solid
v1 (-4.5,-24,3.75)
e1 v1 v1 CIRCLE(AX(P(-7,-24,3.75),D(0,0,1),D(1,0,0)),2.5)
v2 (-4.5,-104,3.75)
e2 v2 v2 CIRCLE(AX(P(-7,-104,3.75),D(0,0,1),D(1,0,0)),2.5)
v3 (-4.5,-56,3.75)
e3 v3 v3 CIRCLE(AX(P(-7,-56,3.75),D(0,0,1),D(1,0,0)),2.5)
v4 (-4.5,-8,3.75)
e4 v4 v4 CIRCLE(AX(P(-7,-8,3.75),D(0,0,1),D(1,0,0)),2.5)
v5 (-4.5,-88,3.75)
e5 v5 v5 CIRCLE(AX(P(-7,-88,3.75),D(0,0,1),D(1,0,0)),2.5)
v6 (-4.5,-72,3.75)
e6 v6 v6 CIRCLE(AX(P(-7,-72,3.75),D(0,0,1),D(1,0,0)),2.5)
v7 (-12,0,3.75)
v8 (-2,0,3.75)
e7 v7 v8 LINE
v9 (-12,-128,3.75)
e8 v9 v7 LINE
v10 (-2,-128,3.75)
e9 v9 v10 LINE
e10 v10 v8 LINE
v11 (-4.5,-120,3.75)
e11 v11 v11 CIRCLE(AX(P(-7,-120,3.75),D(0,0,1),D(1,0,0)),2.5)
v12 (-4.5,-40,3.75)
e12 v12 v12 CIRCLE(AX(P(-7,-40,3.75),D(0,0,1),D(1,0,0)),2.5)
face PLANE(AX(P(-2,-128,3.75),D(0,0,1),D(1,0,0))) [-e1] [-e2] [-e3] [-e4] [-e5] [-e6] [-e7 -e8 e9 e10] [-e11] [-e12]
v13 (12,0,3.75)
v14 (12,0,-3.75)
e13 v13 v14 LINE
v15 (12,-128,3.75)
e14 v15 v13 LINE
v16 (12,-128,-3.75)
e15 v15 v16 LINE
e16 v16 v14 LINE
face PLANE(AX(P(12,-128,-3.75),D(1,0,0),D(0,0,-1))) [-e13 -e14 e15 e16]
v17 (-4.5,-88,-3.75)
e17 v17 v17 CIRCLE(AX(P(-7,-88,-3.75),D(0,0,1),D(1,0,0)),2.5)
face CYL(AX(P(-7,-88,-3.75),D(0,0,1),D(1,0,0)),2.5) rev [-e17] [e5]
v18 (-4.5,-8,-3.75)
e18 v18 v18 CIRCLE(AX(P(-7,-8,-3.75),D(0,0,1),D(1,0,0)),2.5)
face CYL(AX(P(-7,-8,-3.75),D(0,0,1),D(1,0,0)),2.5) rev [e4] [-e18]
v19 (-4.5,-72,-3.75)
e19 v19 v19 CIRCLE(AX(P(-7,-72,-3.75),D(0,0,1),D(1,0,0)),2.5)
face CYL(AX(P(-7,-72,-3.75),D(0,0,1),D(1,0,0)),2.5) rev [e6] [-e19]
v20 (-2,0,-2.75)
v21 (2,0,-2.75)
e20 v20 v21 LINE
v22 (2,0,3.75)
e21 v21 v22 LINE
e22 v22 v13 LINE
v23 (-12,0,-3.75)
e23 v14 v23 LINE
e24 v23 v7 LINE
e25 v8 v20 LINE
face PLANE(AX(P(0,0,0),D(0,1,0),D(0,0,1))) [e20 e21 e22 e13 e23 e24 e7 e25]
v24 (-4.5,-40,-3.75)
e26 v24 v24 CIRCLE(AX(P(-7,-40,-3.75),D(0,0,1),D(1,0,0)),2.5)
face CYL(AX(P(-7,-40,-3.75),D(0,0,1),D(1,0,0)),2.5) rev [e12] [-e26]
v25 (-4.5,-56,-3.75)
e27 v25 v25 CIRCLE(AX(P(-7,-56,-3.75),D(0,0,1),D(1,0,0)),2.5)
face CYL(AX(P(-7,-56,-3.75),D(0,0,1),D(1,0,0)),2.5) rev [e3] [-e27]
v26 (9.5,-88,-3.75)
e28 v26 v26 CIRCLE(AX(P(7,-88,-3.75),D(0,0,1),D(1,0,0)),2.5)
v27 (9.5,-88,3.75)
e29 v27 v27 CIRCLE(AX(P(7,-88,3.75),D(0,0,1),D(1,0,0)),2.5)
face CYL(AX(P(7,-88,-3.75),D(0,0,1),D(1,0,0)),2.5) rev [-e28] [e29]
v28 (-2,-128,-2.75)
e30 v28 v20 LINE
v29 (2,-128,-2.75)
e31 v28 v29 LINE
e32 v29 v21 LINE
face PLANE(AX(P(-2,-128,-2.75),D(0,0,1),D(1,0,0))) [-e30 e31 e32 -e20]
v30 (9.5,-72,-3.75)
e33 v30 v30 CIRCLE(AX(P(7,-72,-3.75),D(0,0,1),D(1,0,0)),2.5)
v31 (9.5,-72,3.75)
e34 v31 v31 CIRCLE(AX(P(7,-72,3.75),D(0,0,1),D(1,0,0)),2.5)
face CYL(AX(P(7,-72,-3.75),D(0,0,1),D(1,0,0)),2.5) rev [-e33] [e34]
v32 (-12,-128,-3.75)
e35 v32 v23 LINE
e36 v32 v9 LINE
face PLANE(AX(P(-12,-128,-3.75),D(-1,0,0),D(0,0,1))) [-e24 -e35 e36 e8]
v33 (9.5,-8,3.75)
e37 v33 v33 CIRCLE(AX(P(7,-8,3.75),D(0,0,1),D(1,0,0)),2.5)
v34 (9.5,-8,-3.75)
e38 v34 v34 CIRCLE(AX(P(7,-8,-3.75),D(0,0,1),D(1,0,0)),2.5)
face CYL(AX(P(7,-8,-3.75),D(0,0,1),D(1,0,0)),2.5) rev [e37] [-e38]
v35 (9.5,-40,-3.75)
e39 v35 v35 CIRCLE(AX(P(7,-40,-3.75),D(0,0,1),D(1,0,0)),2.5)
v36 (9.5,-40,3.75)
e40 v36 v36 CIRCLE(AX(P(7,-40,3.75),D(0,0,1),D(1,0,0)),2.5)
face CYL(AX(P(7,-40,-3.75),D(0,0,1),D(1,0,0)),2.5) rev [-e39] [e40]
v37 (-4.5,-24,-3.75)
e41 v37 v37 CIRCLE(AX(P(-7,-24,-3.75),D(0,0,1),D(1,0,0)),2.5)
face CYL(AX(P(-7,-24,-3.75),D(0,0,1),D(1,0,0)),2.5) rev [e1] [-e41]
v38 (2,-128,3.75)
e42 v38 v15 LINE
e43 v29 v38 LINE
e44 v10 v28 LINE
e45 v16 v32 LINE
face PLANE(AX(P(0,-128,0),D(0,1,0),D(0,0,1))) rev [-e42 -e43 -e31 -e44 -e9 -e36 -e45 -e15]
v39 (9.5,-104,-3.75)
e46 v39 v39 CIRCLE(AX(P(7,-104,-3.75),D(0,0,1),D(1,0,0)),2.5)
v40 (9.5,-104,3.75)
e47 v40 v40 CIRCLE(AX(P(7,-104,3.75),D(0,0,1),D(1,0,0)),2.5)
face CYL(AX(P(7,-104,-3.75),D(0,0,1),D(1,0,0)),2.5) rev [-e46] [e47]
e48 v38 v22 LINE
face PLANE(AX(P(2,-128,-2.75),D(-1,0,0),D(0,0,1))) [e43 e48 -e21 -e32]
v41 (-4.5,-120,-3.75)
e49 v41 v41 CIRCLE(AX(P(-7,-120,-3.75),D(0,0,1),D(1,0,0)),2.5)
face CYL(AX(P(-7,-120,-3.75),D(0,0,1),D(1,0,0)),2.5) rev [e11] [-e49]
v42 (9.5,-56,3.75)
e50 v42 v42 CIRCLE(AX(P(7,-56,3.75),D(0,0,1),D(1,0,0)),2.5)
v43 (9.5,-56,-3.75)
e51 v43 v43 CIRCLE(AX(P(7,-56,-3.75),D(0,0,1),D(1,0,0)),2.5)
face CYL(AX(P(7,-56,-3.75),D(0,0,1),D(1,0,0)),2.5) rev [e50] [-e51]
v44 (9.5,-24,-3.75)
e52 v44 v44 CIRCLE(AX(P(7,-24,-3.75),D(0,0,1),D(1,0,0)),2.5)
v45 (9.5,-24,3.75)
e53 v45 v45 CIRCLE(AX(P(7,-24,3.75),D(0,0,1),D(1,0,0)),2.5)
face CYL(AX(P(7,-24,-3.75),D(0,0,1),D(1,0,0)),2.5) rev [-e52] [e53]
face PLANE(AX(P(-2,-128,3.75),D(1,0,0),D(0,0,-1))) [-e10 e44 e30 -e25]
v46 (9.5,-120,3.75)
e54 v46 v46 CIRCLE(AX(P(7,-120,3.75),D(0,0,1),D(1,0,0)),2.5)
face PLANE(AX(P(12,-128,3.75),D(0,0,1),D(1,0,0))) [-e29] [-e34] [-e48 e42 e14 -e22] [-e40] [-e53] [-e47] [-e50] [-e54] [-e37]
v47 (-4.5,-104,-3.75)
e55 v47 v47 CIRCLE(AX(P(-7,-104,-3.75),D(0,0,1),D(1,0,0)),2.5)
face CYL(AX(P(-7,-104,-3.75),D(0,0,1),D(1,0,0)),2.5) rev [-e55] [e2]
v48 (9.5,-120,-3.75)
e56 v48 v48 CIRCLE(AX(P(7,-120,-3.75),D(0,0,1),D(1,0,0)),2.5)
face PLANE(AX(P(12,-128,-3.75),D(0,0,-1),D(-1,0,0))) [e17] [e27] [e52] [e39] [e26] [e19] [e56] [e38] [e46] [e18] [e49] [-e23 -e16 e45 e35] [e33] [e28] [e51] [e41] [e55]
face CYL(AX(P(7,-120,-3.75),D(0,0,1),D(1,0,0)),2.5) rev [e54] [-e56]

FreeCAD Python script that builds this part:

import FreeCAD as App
import Part
import Sketcher

doc = App.newDocument("Part")
body = doc.addObject("PartDesign::Body", "Body")

sketch1 = body.newObject("Sketcher::SketchObject", "Sketch")
sketch1.AttachmentSupport = (doc.getObject("XZ_Plane"), [""])
sketch1.MapMode = "FlatFace"
sketch1.addGeometry(Part.LineSegment(App.Vector(-2, 3.8, 0), App.Vector(-2, -2.8, 0)), False)
sketch1.addGeometry(Part.LineSegment(App.Vector(-2, -2.8, 0), App.Vector(2, -2.8, 0)), False)
sketch1.addGeometry(Part.LineSegment(App.Vector(2, -2.8, 0), App.Vector(2, 3.8, 0)), False)
sketch1.addGeometry(Part.LineSegment(App.Vector(2, 3.8, 0), App.Vector(12, 3.8, 0)), False)
sketch1.addGeometry(Part.LineSegment(App.Vector(12, 3.8, 0), App.Vector(12, -3.8, 0)), False)
sketch1.addGeometry(Part.LineSegment(App.Vector(12, -3.8, 0), App.Vector(-12, -3.8, 0)), False)
sketch1.addGeometry(Part.LineSegment(App.Vector(-12, -3.8, 0), App.Vector(-12, 3.8, 0)), False)
sketch1.addGeometry(Part.LineSegment(App.Vector(-12, 3.8, 0), App.Vector(-2, 3.8, 0)), False)
sketch1.addConstraint(Sketcher.Constraint("Coincident", 0, 2, 1, 1))
sketch1.addConstraint(Sketcher.Constraint("Coincident", 1, 2, 2, 1))
sketch1.addConstraint(Sketcher.Constraint("Coincident", 2, 2, 3, 1))
sketch1.addConstraint(Sketcher.Constraint("Coincident", 3, 2, 4, 1))
sketch1.addConstraint(Sketcher.Constraint("Coincident", 4, 2, 5, 1))
sketch1.addConstraint(Sketcher.Constraint("Coincident", 5, 2, 6, 1))
sketch1.addConstraint(Sketcher.Constraint("Coincident", 6, 2, 7, 1))
sketch1.addConstraint(Sketcher.Constraint("Coincident", 7, 2, 0, 1))
sketch1.addConstraint(Sketcher.Constraint("Vertical", 0))
sketch1.addConstraint(Sketcher.Constraint("Horizontal", 1))
sketch1.addConstraint(Sketcher.Constraint("Vertical", 2))
sketch1.addConstraint(Sketcher.Constraint("Horizontal", 3))
sketch1.addConstraint(Sketcher.Constraint("Vertical", 4))
sketch1.addConstraint(Sketcher.Constraint("Horizontal", 5))
sketch1.addConstraint(Sketcher.Constraint("Vertical", 6))
sketch1.addConstraint(Sketcher.Constraint("Horizontal", 7))
sketch1.addConstraint(Sketcher.Constraint("Symmetric", 3, 2, 5, 2, -1, 1))
sketch1.addConstraint(Sketcher.Constraint("Symmetric", 2, 2, 7, 2, -2))
sketch1.addConstraint(Sketcher.Constraint("DistanceX", 1, 1, 1, 2, 4.0))
sketch1.addConstraint(Sketcher.Constraint("DistanceX", 3, 1, 3, 2, 10.0))
sketch1.addConstraint(Sketcher.Constraint("DistanceY", 0, 2, 0, 1, 6.5))
sketch1.addConstraint(Sketcher.Constraint("DistanceY", 4, 2, 4, 1, 7.5))
pad1 = body.newObject("PartDesign::Pad", "Pad")
pad1.Profile = sketch1
pad1.Length = 128

sketch2 = body.newObject("Sketcher::SketchObject", "Sketch001")
sketch2.AttachmentSupport = (doc.getObject("XY_Plane"), [""])
sketch2.MapMode = "FlatFace"
sketch2.AttachmentOffset = App.Placement(App.Vector(0, 0, 3.75), App.Rotation())
sketch2.addGeometry(Part.Circle(App.Vector(-7, -8, 0), App.Vector(0, 0, 1), 2.5), False)
sketch2.addGeometry(Part.Circle(App.Vector(7, -8, 0), App.Vector(0, 0, 1), 2.5), False)
sketch2.addGeometry(Part.Circle(App.Vector(7, -24, 0), App.Vector(0, 0, 1), 2.5), False)
sketch2.addGeometry(Part.Circle(App.Vector(7, -40, 0), App.Vector(0, 0, 1), 2.5), False)
sketch2.addGeometry(Part.Circle(App.Vector(7, -56, 0), App.Vector(0, 0, 1), 2.5), False)
sketch2.addGeometry(Part.Circle(App.Vector(7, -72, 0), App.Vector(0, 0, 1), 2.5), False)
sketch2.addGeometry(Part.Circle(App.Vector(7, -88, 0), App.Vector(0, 0, 1), 2.5), False)
sketch2.addGeometry(Part.Circle(App.Vector(7, -104, 0), App.Vector(0, 0, 1), 2.5), False)
sketch2.addGeometry(Part.Circle(App.Vector(7, -120, 0), App.Vector(0, 0, 1), 2.5), False)
sketch2.addGeometry(Part.Circle(App.Vector(-7, -24, 0), App.Vector(0, 0, 1), 2.5), False)
sketch2.addGeometry(Part.Circle(App.Vector(-7, -40, 0), App.Vector(0, 0, 1), 2.5), False)
sketch2.addGeometry(Part.Circle(App.Vector(-7, -56, 0), App.Vector(0, 0, 1), 2.5), False)
sketch2.addGeometry(Part.Circle(App.Vector(-7, -72, 0), App.Vector(0, 0, 1), 2.5), False)
sketch2.addGeometry(Part.Circle(App.Vector(-7, -88, 0), App.Vector(0, 0, 1), 2.5), False)
sketch2.addGeometry(Part.Circle(App.Vector(-7, -104, 0), App.Vector(0, 0, 1), 2.5), False)
sketch2.addGeometry(Part.Circle(App.Vector(-7, -120, 0), App.Vector(0, 0, 1), 2.5), False)
sketch2.addConstraint(Sketcher.Constraint("Equal", 0, 1))
sketch2.addConstraint(Sketcher.Constraint("Equal", 1, 2))
sketch2.addConstraint(Sketcher.Constraint("Equal", 2, 3))
sketch2.addConstraint(Sketcher.Constraint("Equal", 3, 4))
sketch2.addConstraint(Sketcher.Constraint("Equal", 4, 5))
sketch2.addConstraint(Sketcher.Constraint("Equal", 5, 6))
sketch2.addConstraint(Sketcher.Constraint("Equal", 6, 7))
sketch2.addConstraint(Sketcher.Constraint("Equal", 7, 8))
sketch2.addConstraint(Sketcher.Constraint("Equal", 8, 9))
sketch2.addConstraint(Sketcher.Constraint("Equal", 9, 10))
sketch2.addConstraint(Sketcher.Constraint("Equal", 10, 11))
sketch2.addConstraint(Sketcher.Constraint("Equal", 11, 12))
sketch2.addConstraint(Sketcher.Constraint("Equal", 12, 13))
sketch2.addConstraint(Sketcher.Constraint("Equal", 13, 14))
sketch2.addConstraint(Sketcher.Constraint("Equal", 14, 15))
sketch2.addConstraint(Sketcher.Constraint("Symmetric", 0, 3, 1, 3, -2))
sketch2.addConstraint(Sketcher.Constraint("Symmetric", 2, 3, 9, 3, -2))
sketch2.addConstraint(Sketcher.Constraint("Symmetric", 3, 3, 10, 3, -2))
sketch2.addConstraint(Sketcher.Constraint("Symmetric", 4, 3, 11, 3, -2))
sketch2.addConstraint(Sketcher.Constraint("Symmetric", 5, 3, 12, 3, -2))
sketch2.addConstraint(Sketcher.Constraint("Symmetric", 6, 3, 13, 3, -2))
sketch2.addConstraint(Sketcher.Constraint("Symmetric", 7, 3, 14, 3, -2))
sketch2.addConstraint(Sketcher.Constraint("Symmetric", 8, 3, 15, 3, -2))
sketch2.addConstraint(Sketcher.Constraint("Vertical", 1, 3, 2, 3))
sketch2.addConstraint(Sketcher.Constraint("Vertical", 2, 3, 3, 3))
sketch2.addConstraint(Sketcher.Constraint("Vertical", 3, 3, 4, 3))
sketch2.addConstraint(Sketcher.Constraint("Vertical", 4, 3, 5, 3))
sketch2.addConstraint(Sketcher.Constraint("Vertical", 5, 3, 6, 3))
sketch2.addConstraint(Sketcher.Constraint("Vertical", 6, 3, 7, 3))
sketch2.addConstraint(Sketcher.Constraint("Vertical", 7, 3, 8, 3))
sketch2.addConstraint(Sketcher.Constraint("Diameter", 0, 5.0))
sketch2.addConstraint(Sketcher.Constraint("DistanceX", 0, 3, -1, 1, 7.0))
sketch2.addConstraint(Sketcher.Constraint("DistanceY", 0, 3, -1, 1, 8.0))
sketch2.addConstraint(Sketcher.Constraint("DistanceY", 2, 3, -1, 1, 24.0))
sketch2.addConstraint(Sketcher.Constraint("DistanceY", 3, 3, -1, 1, 40.0))
sketch2.addConstraint(Sketcher.Constraint("DistanceY", 4, 3, -1, 1, 56.0))
sketch2.addConstraint(Sketcher.Constraint("DistanceY", 5, 3, -1, 1, 72.0))
sketch2.addConstraint(Sketcher.Constraint("DistanceY", 6, 3, -1, 1, 88.0))
sketch2.addConstraint(Sketcher.Constraint("DistanceY", 7, 3, -1, 1, 104.0))
sketch2.addConstraint(Sketcher.Constraint("DistanceY", 8, 3, -1, 1, 120.0))
pocket1 = body.newObject("PartDesign::Pocket", "Pocket")
pocket1.Profile = sketch2
pocket1.Type = "ThroughAll"

doc.recompute()
